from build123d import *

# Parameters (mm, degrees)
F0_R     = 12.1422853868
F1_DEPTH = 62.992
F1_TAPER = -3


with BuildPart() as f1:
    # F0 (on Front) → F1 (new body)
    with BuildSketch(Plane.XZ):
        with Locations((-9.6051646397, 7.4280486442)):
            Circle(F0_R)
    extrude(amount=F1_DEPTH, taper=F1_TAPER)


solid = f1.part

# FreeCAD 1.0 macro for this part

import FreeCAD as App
import Part
import Sketcher

V = App.Vector
Q = App.Units.Quantity

doc = App.newDocument("Part")
body = doc.addObject("PartDesign::Body", "Body")

# Sketch on XZ plane
sketch1 = body.newObject("Sketcher::SketchObject", "Sketch")
sketch1.AttachmentSupport = (doc.getObject("XZ_Plane"), [""])
sketch1.MapMode = "FlatFace"
sketch1.addGeometry(Part.Circle(V(-9.605165, 7.428049, 0), V(0, 0, 1), 12.142285), False)
sketch1.addConstraint([
    Sketcher.Constraint("Diameter", 0, Q("24.284571 mm")),
    Sketcher.Constraint("DistanceY", -1, 1, 0, 3, Q("7.428049 mm")),
    Sketcher.Constraint("DistanceX", 0, 3, -1, 1, Q("9.605165 mm")),
])
pad1 = body.newObject("PartDesign::Pad", "Pad")
pad1.Profile = sketch1
pad1.Length = Q("2.48 in")
pad1.TaperAngle = 3

doc.recompute()
